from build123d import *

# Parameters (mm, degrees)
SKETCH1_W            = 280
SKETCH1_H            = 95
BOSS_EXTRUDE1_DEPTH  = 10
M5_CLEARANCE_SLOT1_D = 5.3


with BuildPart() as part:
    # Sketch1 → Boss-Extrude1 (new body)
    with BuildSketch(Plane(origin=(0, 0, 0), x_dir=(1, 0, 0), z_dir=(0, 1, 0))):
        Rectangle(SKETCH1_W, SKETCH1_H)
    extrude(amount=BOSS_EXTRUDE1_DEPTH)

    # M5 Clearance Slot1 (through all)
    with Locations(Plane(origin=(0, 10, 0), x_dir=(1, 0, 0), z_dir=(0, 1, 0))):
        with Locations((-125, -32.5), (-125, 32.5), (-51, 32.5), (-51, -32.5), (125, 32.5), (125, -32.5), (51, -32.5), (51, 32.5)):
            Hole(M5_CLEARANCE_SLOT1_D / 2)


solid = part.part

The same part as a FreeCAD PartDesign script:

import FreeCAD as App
import Part
import Sketcher
from FreeCAD import Vector


def add_polygon(sketch, points):
    """Adds a closed chain of lines whose ends are joined by coincident constraints."""
    first, n = sketch.GeometryCount, len(points)
    for a, b in zip(points, points[1:] + points[:1]):
        sketch.addGeometry(Part.LineSegment(App.Vector(*a, 0), App.Vector(*b, 0)), False)
    for i in range(n):
        sketch.addConstraint(Sketcher.Constraint("Coincident", first + i, 2, first + (i + 1) % n, 1))

doc = App.newDocument("Part")
body = doc.addObject("PartDesign::Body", "Body")

# Sketch on XZ plane
sketch1 = body.newObject("Sketcher::SketchObject", "Sketch")
sketch1.AttachmentSupport = (doc.getObject("XZ_Plane"), [""])
sketch1.MapMode = "FlatFace"
add_polygon(sketch1, [(-140, -48), (-140, 48), (140, 48), (140, -48)])  # lines 0-3
sketch1.addConstraint(Sketcher.Constraint("Vertical", 0))
sketch1.addConstraint(Sketcher.Constraint("Horizontal", 1))
sketch1.addConstraint(Sketcher.Constraint("Vertical", 2))
sketch1.addConstraint(Sketcher.Constraint("Horizontal", 3))
sketch1.addConstraint(Sketcher.Constraint("Symmetric", 0, 2, 2, 2, -1, 1))
sketch1.addConstraint(Sketcher.Constraint("DistanceX", 1, 1, 1, 2, 280.0))
sketch1.addConstraint(Sketcher.Constraint("DistanceY", 0, 1, 0, 2, 95.0))
pad1 = body.newObject("PartDesign::Pad", "Pad")
pad1.Profile = sketch1
pad1.Length = 10
pad1.Reversed = True

# Sketch on XZ plane
sketch2 = body.newObject("Sketcher::SketchObject", "Sketch001")
sketch2.AttachmentSupport = (doc.getObject("XZ_Plane"), [""])
sketch2.MapMode = "FlatFace"
sketch2.AttachmentOffset = App.Placement(Vector(0, 0, -10), App.Rotation())
sketch2.addGeometry(Part.Circle(Vector(-125, 32.5, 0), Vector(0, 0, 1), 2.6), False)
sketch2.addGeometry(Part.Circle(Vector(-125, -32.5, 0), Vector(0, 0, 1), 2.6), False)
sketch2.addGeometry(Part.Circle(Vector(-51, -32.5, 0), Vector(0, 0, 1), 2.6), False)
sketch2.addGeometry(Part.Circle(Vector(-51, 32.5, 0), Vector(0, 0, 1), 2.6), False)
sketch2.addGeometry(Part.Circle(Vector(125, -32.5, 0), Vector(0, 0, 1), 2.6), False)
sketch2.addGeometry(Part.Circle(Vector(125, 32.5, 0), Vector(0, 0, 1), 2.6), False)
sketch2.addGeometry(Part.Circle(Vector(51, 32.5, 0), Vector(0, 0, 1), 2.6), False)
sketch2.addGeometry(Part.Circle(Vector(51, -32.5, 0), Vector(0, 0, 1), 2.6), False)
sketch2.addConstraint(Sketcher.Constraint("Equal", 0, 1))
sketch2.addConstraint(Sketcher.Constraint("Equal", 1, 2))
sketch2.addConstraint(Sketcher.Constraint("Equal", 2, 3))
sketch2.addConstraint(Sketcher.Constraint("Equal", 3, 4))
sketch2.addConstraint(Sketcher.Constraint("Equal", 4, 5))
sketch2.addConstraint(Sketcher.Constraint("Equal", 5, 6))
sketch2.addConstraint(Sketcher.Constraint("Equal", 6, 7))
sketch2.addConstraint(Sketcher.Constraint("Symmetric", 0, 3, 4, 3, -1, 1))
sketch2.addConstraint(Sketcher.Constraint("Symmetric", 1, 3, 5, 3, -1, 1))
sketch2.addConstraint(Sketcher.Constraint("Symmetric", 2, 3, 6, 3, -1, 1))
sketch2.addConstraint(Sketcher.Constraint("Symmetric", 3, 3, 7, 3, -1, 1))
sketch2.addConstraint(Sketcher.Constraint("Symmetric", 1, 3, 4, 3, -2))
sketch2.addConstraint(Sketcher.Constraint("Symmetric", 3, 3, 6, 3, -2))
sketch2.addConstraint(Sketcher.Constraint("Horizontal", 1, 3, 2, 3))
sketch2.addConstraint(Sketcher.Constraint("Diameter", 0, 5.3))
sketch2.addConstraint(Sketcher.Constraint("DistanceX", 0, 3, -1, 1, 125.0))
sketch2.addConstraint(Sketcher.Constraint("DistanceX", 2, 3, -1, 1, 51.0))
sketch2.addConstraint(Sketcher.Constraint("DistanceY", 1, 3, 0, 3, 65.0))
doc.recompute()
hole = body.newObject("PartDesign::Hole", "Hole")
hole.Profile = sketch2
hole.ThreadType = "None"
hole.Diameter = 5.3
hole.DepthType = "ThroughAll"
hole.Reversed = True

doc.recompute()
